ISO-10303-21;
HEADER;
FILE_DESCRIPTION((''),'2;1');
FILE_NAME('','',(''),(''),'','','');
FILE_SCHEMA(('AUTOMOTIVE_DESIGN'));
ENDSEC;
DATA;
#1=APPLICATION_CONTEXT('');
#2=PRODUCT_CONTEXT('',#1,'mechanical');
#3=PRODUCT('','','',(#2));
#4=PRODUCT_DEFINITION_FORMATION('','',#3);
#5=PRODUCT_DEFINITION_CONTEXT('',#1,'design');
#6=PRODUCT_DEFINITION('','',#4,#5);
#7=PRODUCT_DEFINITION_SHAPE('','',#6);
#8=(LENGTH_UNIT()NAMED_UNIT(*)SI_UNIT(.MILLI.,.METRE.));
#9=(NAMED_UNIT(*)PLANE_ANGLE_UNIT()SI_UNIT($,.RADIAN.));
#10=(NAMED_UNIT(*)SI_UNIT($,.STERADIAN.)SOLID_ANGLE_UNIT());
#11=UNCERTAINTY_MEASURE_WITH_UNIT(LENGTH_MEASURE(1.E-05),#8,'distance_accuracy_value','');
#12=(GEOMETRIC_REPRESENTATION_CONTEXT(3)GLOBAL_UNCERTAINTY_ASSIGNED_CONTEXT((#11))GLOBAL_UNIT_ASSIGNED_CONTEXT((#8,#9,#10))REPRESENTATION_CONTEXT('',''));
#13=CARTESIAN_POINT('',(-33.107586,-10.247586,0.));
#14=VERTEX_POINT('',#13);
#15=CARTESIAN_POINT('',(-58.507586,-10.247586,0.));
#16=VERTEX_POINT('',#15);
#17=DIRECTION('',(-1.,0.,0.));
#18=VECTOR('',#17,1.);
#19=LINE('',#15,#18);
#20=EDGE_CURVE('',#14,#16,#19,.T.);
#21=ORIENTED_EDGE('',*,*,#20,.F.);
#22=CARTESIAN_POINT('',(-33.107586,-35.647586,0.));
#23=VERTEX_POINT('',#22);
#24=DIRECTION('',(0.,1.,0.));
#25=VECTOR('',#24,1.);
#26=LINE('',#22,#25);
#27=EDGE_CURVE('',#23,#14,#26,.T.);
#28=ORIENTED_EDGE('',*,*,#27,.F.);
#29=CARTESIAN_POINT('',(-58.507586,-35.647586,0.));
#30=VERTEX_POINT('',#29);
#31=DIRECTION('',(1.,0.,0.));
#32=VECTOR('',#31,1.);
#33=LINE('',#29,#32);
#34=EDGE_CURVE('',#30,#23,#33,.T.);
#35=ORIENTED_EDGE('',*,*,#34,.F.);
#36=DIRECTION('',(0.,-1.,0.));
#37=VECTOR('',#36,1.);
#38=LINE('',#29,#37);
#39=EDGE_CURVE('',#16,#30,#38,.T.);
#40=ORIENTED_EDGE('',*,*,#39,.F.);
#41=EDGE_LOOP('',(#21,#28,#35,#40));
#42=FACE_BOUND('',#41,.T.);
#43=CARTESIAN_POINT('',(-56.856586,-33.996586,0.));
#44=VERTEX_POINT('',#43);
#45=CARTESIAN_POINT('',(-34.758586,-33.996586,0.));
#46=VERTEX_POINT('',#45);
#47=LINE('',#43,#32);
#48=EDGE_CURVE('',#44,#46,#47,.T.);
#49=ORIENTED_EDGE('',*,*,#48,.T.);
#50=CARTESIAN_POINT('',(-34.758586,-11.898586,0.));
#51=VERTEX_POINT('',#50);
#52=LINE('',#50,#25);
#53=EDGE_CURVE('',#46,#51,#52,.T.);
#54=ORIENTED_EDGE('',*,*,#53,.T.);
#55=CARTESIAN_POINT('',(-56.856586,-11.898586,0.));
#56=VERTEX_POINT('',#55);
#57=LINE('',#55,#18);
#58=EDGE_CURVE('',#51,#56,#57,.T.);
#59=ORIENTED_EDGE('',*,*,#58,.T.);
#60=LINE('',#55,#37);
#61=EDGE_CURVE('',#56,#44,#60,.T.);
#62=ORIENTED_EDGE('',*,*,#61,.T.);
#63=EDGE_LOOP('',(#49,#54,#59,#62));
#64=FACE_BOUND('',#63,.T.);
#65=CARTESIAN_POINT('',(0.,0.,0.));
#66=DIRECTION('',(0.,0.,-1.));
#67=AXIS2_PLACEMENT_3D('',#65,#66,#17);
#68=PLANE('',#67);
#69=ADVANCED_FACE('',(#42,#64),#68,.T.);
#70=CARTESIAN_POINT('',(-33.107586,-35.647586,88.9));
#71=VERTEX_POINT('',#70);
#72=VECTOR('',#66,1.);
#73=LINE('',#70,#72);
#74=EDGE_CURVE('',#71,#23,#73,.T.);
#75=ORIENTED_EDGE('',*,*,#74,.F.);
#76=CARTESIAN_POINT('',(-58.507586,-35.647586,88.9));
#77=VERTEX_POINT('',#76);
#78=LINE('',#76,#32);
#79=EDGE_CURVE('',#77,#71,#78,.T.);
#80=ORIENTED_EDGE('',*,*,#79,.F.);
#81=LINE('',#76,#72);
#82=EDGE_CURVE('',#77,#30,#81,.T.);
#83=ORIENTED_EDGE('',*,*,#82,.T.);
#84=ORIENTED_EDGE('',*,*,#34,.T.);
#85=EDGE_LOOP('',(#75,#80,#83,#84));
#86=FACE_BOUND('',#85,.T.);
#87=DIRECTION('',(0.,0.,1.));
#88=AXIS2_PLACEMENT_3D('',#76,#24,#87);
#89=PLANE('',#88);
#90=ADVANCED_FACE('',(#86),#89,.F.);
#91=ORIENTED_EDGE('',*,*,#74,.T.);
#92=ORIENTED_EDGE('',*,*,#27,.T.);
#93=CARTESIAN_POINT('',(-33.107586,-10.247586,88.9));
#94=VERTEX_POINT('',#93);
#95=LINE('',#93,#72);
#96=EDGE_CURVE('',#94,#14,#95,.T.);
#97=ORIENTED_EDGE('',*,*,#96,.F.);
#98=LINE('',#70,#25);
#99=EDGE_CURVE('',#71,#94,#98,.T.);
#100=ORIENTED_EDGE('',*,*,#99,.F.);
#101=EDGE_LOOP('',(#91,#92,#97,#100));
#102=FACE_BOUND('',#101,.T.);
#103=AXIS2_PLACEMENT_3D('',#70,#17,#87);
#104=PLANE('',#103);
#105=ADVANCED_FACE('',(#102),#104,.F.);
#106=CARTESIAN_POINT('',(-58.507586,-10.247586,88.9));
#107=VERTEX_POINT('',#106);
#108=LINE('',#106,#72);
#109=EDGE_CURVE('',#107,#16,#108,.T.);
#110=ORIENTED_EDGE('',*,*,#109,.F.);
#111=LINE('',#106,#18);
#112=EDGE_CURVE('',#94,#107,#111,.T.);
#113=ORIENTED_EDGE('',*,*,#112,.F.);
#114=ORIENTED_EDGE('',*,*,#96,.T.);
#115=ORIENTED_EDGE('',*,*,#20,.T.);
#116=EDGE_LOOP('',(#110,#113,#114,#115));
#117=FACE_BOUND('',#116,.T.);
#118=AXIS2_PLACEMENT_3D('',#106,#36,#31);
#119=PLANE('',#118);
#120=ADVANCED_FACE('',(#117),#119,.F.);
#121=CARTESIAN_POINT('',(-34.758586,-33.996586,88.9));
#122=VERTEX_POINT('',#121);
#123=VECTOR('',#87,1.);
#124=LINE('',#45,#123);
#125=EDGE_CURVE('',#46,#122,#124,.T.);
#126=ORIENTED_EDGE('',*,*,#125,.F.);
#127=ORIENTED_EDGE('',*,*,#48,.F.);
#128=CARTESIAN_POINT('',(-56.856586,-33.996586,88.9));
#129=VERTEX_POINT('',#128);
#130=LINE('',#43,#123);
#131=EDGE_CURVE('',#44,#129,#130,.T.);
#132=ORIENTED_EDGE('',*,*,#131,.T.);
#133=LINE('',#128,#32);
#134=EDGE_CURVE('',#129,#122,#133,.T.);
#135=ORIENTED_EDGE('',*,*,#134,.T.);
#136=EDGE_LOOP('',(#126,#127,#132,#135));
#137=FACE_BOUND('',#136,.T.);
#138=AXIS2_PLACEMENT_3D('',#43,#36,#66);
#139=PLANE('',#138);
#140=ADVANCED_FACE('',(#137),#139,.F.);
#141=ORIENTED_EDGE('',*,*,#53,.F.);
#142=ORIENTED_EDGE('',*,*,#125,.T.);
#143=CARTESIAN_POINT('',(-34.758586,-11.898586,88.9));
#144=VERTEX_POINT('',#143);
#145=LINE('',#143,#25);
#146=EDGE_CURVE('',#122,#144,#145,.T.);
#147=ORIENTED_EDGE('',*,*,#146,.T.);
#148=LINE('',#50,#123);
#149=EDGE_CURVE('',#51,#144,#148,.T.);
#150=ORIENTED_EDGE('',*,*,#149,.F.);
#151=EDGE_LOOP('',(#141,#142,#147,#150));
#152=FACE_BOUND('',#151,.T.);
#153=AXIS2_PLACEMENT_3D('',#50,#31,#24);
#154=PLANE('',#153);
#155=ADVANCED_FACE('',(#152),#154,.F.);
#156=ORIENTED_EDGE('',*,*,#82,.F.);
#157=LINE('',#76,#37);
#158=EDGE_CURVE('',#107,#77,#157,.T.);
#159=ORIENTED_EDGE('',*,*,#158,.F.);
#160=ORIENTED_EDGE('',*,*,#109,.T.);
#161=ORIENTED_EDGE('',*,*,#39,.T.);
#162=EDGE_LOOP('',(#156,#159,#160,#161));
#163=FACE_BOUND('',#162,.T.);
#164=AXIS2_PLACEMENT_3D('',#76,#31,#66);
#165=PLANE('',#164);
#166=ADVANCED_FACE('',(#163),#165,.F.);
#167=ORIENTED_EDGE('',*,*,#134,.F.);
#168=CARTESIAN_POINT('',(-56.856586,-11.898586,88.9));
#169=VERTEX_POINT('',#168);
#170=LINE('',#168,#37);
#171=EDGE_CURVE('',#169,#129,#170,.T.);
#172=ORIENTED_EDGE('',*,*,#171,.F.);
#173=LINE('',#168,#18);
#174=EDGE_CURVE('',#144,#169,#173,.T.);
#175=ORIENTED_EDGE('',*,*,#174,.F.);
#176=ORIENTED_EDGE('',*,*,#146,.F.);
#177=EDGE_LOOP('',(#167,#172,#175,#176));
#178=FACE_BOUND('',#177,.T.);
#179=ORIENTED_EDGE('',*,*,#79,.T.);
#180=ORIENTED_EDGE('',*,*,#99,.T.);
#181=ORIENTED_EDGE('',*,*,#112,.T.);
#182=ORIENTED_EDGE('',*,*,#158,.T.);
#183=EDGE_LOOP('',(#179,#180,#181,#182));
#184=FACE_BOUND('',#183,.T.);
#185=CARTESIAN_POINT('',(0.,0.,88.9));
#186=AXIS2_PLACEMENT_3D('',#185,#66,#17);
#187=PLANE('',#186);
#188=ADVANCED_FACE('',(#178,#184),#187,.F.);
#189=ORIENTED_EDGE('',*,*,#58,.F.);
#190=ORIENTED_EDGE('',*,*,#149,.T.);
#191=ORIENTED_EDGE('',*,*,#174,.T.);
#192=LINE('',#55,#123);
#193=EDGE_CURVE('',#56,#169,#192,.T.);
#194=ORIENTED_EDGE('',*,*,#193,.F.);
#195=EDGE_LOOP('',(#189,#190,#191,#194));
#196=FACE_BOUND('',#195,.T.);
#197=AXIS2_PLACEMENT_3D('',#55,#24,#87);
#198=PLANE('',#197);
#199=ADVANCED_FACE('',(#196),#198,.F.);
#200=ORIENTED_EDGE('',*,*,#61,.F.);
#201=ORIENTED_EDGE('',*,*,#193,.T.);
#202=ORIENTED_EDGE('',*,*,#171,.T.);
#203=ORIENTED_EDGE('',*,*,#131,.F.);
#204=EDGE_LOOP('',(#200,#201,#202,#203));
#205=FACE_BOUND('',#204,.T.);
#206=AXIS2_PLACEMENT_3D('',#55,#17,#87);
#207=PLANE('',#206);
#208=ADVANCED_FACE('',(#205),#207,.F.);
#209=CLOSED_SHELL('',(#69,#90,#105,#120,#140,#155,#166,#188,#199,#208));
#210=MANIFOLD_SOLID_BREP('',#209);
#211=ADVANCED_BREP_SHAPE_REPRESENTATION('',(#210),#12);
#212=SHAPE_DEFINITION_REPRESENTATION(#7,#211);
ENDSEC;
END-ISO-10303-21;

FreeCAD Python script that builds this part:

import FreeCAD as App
import Part
import Sketcher
Q = App.Units.Quantity


def add_polygon(sketch, points):
    """Adds a closed chain of lines whose ends are joined by coincident constraints."""
    first, n = sketch.GeometryCount, len(points)
    for a, b in zip(points, points[1:] + points[:1]):
        sketch.addGeometry(Part.LineSegment(App.Vector(*a, 0), App.Vector(*b, 0)), False)
    for i in range(n):
        sketch.addConstraint(Sketcher.Constraint("Coincident", first + i, 2, first + (i + 1) % n, 1))

doc = App.newDocument("Part")
body = doc.addObject("PartDesign::Body", "Body")

# Sketch on XY plane
sketch1 = body.newObject("Sketcher::SketchObject", "Sketch")
sketch1.AttachmentSupport = (doc.getObject("XY_Plane"), [""])
sketch1.MapMode = "FlatFace"
add_polygon(sketch1, [(-59, -10), (-59, -36), (-33, -36), (-33, -10)])  # lines 0-3
sketch1.addConstraint(Sketcher.Constraint("Vertical", 0))
sketch1.addConstraint(Sketcher.Constraint("Horizontal", 1))
sketch1.addConstraint(Sketcher.Constraint("Vertical", 2))
sketch1.addConstraint(Sketcher.Constraint("Horizontal", 3))
sketch1.addConstraint(Sketcher.Constraint("Equal", 3, 0))
sketch1.addConstraint(Sketcher.Constraint("DistanceX", 1, 1, 1, 2, Q("1 in")))
sketch1.addConstraint(Sketcher.Constraint("DistanceX", 0, 2, -1, 1, 58.507586))
sketch1.addConstraint(Sketcher.Constraint("DistanceY", 0, 2, -1, 1, 35.647586))
pad1 = body.newObject("PartDesign::Pad", "Pad")
pad1.Profile = sketch1
pad1.Length = Q("3.5 in")

# Sketch on XY plane
sketch2 = body.newObject("Sketcher::SketchObject", "Sketch001")
sketch2.AttachmentSupport = (doc.getObject("XY_Plane"), [""])
sketch2.MapMode = "FlatFace"
sketch2.AttachmentOffset = App.Placement(App.Vector(0, 0, 3.5 * 25.4), App.Rotation())
add_polygon(sketch2, [(-57, -12), (-57, -34), (-35, -34), (-35, -12)])  # lines 0-3
sketch2.addConstraint(Sketcher.Constraint("Vertical", 0))
sketch2.addConstraint(Sketcher.Constraint("Horizontal", 1))
sketch2.addConstraint(Sketcher.Constraint("Vertical", 2))
sketch2.addConstraint(Sketcher.Constraint("Horizontal", 3))
sketch2.addConstraint(Sketcher.Constraint("Equal", 3, 0))
sketch2.addConstraint(Sketcher.Constraint("DistanceX", 1, 1, 1, 2, Q("0.87 in")))
sketch2.addConstraint(Sketcher.Constraint("DistanceX", 0, 2, -1, 1, 56.856586))
sketch2.addConstraint(Sketcher.Constraint("DistanceY", 0, 2, -1, 1, 33.996586))
pocket1 = body.newObject("PartDesign::Pocket", "Pocket")
pocket1.Profile = sketch2
pocket1.Type = "ThroughAll"

doc.recompute()
